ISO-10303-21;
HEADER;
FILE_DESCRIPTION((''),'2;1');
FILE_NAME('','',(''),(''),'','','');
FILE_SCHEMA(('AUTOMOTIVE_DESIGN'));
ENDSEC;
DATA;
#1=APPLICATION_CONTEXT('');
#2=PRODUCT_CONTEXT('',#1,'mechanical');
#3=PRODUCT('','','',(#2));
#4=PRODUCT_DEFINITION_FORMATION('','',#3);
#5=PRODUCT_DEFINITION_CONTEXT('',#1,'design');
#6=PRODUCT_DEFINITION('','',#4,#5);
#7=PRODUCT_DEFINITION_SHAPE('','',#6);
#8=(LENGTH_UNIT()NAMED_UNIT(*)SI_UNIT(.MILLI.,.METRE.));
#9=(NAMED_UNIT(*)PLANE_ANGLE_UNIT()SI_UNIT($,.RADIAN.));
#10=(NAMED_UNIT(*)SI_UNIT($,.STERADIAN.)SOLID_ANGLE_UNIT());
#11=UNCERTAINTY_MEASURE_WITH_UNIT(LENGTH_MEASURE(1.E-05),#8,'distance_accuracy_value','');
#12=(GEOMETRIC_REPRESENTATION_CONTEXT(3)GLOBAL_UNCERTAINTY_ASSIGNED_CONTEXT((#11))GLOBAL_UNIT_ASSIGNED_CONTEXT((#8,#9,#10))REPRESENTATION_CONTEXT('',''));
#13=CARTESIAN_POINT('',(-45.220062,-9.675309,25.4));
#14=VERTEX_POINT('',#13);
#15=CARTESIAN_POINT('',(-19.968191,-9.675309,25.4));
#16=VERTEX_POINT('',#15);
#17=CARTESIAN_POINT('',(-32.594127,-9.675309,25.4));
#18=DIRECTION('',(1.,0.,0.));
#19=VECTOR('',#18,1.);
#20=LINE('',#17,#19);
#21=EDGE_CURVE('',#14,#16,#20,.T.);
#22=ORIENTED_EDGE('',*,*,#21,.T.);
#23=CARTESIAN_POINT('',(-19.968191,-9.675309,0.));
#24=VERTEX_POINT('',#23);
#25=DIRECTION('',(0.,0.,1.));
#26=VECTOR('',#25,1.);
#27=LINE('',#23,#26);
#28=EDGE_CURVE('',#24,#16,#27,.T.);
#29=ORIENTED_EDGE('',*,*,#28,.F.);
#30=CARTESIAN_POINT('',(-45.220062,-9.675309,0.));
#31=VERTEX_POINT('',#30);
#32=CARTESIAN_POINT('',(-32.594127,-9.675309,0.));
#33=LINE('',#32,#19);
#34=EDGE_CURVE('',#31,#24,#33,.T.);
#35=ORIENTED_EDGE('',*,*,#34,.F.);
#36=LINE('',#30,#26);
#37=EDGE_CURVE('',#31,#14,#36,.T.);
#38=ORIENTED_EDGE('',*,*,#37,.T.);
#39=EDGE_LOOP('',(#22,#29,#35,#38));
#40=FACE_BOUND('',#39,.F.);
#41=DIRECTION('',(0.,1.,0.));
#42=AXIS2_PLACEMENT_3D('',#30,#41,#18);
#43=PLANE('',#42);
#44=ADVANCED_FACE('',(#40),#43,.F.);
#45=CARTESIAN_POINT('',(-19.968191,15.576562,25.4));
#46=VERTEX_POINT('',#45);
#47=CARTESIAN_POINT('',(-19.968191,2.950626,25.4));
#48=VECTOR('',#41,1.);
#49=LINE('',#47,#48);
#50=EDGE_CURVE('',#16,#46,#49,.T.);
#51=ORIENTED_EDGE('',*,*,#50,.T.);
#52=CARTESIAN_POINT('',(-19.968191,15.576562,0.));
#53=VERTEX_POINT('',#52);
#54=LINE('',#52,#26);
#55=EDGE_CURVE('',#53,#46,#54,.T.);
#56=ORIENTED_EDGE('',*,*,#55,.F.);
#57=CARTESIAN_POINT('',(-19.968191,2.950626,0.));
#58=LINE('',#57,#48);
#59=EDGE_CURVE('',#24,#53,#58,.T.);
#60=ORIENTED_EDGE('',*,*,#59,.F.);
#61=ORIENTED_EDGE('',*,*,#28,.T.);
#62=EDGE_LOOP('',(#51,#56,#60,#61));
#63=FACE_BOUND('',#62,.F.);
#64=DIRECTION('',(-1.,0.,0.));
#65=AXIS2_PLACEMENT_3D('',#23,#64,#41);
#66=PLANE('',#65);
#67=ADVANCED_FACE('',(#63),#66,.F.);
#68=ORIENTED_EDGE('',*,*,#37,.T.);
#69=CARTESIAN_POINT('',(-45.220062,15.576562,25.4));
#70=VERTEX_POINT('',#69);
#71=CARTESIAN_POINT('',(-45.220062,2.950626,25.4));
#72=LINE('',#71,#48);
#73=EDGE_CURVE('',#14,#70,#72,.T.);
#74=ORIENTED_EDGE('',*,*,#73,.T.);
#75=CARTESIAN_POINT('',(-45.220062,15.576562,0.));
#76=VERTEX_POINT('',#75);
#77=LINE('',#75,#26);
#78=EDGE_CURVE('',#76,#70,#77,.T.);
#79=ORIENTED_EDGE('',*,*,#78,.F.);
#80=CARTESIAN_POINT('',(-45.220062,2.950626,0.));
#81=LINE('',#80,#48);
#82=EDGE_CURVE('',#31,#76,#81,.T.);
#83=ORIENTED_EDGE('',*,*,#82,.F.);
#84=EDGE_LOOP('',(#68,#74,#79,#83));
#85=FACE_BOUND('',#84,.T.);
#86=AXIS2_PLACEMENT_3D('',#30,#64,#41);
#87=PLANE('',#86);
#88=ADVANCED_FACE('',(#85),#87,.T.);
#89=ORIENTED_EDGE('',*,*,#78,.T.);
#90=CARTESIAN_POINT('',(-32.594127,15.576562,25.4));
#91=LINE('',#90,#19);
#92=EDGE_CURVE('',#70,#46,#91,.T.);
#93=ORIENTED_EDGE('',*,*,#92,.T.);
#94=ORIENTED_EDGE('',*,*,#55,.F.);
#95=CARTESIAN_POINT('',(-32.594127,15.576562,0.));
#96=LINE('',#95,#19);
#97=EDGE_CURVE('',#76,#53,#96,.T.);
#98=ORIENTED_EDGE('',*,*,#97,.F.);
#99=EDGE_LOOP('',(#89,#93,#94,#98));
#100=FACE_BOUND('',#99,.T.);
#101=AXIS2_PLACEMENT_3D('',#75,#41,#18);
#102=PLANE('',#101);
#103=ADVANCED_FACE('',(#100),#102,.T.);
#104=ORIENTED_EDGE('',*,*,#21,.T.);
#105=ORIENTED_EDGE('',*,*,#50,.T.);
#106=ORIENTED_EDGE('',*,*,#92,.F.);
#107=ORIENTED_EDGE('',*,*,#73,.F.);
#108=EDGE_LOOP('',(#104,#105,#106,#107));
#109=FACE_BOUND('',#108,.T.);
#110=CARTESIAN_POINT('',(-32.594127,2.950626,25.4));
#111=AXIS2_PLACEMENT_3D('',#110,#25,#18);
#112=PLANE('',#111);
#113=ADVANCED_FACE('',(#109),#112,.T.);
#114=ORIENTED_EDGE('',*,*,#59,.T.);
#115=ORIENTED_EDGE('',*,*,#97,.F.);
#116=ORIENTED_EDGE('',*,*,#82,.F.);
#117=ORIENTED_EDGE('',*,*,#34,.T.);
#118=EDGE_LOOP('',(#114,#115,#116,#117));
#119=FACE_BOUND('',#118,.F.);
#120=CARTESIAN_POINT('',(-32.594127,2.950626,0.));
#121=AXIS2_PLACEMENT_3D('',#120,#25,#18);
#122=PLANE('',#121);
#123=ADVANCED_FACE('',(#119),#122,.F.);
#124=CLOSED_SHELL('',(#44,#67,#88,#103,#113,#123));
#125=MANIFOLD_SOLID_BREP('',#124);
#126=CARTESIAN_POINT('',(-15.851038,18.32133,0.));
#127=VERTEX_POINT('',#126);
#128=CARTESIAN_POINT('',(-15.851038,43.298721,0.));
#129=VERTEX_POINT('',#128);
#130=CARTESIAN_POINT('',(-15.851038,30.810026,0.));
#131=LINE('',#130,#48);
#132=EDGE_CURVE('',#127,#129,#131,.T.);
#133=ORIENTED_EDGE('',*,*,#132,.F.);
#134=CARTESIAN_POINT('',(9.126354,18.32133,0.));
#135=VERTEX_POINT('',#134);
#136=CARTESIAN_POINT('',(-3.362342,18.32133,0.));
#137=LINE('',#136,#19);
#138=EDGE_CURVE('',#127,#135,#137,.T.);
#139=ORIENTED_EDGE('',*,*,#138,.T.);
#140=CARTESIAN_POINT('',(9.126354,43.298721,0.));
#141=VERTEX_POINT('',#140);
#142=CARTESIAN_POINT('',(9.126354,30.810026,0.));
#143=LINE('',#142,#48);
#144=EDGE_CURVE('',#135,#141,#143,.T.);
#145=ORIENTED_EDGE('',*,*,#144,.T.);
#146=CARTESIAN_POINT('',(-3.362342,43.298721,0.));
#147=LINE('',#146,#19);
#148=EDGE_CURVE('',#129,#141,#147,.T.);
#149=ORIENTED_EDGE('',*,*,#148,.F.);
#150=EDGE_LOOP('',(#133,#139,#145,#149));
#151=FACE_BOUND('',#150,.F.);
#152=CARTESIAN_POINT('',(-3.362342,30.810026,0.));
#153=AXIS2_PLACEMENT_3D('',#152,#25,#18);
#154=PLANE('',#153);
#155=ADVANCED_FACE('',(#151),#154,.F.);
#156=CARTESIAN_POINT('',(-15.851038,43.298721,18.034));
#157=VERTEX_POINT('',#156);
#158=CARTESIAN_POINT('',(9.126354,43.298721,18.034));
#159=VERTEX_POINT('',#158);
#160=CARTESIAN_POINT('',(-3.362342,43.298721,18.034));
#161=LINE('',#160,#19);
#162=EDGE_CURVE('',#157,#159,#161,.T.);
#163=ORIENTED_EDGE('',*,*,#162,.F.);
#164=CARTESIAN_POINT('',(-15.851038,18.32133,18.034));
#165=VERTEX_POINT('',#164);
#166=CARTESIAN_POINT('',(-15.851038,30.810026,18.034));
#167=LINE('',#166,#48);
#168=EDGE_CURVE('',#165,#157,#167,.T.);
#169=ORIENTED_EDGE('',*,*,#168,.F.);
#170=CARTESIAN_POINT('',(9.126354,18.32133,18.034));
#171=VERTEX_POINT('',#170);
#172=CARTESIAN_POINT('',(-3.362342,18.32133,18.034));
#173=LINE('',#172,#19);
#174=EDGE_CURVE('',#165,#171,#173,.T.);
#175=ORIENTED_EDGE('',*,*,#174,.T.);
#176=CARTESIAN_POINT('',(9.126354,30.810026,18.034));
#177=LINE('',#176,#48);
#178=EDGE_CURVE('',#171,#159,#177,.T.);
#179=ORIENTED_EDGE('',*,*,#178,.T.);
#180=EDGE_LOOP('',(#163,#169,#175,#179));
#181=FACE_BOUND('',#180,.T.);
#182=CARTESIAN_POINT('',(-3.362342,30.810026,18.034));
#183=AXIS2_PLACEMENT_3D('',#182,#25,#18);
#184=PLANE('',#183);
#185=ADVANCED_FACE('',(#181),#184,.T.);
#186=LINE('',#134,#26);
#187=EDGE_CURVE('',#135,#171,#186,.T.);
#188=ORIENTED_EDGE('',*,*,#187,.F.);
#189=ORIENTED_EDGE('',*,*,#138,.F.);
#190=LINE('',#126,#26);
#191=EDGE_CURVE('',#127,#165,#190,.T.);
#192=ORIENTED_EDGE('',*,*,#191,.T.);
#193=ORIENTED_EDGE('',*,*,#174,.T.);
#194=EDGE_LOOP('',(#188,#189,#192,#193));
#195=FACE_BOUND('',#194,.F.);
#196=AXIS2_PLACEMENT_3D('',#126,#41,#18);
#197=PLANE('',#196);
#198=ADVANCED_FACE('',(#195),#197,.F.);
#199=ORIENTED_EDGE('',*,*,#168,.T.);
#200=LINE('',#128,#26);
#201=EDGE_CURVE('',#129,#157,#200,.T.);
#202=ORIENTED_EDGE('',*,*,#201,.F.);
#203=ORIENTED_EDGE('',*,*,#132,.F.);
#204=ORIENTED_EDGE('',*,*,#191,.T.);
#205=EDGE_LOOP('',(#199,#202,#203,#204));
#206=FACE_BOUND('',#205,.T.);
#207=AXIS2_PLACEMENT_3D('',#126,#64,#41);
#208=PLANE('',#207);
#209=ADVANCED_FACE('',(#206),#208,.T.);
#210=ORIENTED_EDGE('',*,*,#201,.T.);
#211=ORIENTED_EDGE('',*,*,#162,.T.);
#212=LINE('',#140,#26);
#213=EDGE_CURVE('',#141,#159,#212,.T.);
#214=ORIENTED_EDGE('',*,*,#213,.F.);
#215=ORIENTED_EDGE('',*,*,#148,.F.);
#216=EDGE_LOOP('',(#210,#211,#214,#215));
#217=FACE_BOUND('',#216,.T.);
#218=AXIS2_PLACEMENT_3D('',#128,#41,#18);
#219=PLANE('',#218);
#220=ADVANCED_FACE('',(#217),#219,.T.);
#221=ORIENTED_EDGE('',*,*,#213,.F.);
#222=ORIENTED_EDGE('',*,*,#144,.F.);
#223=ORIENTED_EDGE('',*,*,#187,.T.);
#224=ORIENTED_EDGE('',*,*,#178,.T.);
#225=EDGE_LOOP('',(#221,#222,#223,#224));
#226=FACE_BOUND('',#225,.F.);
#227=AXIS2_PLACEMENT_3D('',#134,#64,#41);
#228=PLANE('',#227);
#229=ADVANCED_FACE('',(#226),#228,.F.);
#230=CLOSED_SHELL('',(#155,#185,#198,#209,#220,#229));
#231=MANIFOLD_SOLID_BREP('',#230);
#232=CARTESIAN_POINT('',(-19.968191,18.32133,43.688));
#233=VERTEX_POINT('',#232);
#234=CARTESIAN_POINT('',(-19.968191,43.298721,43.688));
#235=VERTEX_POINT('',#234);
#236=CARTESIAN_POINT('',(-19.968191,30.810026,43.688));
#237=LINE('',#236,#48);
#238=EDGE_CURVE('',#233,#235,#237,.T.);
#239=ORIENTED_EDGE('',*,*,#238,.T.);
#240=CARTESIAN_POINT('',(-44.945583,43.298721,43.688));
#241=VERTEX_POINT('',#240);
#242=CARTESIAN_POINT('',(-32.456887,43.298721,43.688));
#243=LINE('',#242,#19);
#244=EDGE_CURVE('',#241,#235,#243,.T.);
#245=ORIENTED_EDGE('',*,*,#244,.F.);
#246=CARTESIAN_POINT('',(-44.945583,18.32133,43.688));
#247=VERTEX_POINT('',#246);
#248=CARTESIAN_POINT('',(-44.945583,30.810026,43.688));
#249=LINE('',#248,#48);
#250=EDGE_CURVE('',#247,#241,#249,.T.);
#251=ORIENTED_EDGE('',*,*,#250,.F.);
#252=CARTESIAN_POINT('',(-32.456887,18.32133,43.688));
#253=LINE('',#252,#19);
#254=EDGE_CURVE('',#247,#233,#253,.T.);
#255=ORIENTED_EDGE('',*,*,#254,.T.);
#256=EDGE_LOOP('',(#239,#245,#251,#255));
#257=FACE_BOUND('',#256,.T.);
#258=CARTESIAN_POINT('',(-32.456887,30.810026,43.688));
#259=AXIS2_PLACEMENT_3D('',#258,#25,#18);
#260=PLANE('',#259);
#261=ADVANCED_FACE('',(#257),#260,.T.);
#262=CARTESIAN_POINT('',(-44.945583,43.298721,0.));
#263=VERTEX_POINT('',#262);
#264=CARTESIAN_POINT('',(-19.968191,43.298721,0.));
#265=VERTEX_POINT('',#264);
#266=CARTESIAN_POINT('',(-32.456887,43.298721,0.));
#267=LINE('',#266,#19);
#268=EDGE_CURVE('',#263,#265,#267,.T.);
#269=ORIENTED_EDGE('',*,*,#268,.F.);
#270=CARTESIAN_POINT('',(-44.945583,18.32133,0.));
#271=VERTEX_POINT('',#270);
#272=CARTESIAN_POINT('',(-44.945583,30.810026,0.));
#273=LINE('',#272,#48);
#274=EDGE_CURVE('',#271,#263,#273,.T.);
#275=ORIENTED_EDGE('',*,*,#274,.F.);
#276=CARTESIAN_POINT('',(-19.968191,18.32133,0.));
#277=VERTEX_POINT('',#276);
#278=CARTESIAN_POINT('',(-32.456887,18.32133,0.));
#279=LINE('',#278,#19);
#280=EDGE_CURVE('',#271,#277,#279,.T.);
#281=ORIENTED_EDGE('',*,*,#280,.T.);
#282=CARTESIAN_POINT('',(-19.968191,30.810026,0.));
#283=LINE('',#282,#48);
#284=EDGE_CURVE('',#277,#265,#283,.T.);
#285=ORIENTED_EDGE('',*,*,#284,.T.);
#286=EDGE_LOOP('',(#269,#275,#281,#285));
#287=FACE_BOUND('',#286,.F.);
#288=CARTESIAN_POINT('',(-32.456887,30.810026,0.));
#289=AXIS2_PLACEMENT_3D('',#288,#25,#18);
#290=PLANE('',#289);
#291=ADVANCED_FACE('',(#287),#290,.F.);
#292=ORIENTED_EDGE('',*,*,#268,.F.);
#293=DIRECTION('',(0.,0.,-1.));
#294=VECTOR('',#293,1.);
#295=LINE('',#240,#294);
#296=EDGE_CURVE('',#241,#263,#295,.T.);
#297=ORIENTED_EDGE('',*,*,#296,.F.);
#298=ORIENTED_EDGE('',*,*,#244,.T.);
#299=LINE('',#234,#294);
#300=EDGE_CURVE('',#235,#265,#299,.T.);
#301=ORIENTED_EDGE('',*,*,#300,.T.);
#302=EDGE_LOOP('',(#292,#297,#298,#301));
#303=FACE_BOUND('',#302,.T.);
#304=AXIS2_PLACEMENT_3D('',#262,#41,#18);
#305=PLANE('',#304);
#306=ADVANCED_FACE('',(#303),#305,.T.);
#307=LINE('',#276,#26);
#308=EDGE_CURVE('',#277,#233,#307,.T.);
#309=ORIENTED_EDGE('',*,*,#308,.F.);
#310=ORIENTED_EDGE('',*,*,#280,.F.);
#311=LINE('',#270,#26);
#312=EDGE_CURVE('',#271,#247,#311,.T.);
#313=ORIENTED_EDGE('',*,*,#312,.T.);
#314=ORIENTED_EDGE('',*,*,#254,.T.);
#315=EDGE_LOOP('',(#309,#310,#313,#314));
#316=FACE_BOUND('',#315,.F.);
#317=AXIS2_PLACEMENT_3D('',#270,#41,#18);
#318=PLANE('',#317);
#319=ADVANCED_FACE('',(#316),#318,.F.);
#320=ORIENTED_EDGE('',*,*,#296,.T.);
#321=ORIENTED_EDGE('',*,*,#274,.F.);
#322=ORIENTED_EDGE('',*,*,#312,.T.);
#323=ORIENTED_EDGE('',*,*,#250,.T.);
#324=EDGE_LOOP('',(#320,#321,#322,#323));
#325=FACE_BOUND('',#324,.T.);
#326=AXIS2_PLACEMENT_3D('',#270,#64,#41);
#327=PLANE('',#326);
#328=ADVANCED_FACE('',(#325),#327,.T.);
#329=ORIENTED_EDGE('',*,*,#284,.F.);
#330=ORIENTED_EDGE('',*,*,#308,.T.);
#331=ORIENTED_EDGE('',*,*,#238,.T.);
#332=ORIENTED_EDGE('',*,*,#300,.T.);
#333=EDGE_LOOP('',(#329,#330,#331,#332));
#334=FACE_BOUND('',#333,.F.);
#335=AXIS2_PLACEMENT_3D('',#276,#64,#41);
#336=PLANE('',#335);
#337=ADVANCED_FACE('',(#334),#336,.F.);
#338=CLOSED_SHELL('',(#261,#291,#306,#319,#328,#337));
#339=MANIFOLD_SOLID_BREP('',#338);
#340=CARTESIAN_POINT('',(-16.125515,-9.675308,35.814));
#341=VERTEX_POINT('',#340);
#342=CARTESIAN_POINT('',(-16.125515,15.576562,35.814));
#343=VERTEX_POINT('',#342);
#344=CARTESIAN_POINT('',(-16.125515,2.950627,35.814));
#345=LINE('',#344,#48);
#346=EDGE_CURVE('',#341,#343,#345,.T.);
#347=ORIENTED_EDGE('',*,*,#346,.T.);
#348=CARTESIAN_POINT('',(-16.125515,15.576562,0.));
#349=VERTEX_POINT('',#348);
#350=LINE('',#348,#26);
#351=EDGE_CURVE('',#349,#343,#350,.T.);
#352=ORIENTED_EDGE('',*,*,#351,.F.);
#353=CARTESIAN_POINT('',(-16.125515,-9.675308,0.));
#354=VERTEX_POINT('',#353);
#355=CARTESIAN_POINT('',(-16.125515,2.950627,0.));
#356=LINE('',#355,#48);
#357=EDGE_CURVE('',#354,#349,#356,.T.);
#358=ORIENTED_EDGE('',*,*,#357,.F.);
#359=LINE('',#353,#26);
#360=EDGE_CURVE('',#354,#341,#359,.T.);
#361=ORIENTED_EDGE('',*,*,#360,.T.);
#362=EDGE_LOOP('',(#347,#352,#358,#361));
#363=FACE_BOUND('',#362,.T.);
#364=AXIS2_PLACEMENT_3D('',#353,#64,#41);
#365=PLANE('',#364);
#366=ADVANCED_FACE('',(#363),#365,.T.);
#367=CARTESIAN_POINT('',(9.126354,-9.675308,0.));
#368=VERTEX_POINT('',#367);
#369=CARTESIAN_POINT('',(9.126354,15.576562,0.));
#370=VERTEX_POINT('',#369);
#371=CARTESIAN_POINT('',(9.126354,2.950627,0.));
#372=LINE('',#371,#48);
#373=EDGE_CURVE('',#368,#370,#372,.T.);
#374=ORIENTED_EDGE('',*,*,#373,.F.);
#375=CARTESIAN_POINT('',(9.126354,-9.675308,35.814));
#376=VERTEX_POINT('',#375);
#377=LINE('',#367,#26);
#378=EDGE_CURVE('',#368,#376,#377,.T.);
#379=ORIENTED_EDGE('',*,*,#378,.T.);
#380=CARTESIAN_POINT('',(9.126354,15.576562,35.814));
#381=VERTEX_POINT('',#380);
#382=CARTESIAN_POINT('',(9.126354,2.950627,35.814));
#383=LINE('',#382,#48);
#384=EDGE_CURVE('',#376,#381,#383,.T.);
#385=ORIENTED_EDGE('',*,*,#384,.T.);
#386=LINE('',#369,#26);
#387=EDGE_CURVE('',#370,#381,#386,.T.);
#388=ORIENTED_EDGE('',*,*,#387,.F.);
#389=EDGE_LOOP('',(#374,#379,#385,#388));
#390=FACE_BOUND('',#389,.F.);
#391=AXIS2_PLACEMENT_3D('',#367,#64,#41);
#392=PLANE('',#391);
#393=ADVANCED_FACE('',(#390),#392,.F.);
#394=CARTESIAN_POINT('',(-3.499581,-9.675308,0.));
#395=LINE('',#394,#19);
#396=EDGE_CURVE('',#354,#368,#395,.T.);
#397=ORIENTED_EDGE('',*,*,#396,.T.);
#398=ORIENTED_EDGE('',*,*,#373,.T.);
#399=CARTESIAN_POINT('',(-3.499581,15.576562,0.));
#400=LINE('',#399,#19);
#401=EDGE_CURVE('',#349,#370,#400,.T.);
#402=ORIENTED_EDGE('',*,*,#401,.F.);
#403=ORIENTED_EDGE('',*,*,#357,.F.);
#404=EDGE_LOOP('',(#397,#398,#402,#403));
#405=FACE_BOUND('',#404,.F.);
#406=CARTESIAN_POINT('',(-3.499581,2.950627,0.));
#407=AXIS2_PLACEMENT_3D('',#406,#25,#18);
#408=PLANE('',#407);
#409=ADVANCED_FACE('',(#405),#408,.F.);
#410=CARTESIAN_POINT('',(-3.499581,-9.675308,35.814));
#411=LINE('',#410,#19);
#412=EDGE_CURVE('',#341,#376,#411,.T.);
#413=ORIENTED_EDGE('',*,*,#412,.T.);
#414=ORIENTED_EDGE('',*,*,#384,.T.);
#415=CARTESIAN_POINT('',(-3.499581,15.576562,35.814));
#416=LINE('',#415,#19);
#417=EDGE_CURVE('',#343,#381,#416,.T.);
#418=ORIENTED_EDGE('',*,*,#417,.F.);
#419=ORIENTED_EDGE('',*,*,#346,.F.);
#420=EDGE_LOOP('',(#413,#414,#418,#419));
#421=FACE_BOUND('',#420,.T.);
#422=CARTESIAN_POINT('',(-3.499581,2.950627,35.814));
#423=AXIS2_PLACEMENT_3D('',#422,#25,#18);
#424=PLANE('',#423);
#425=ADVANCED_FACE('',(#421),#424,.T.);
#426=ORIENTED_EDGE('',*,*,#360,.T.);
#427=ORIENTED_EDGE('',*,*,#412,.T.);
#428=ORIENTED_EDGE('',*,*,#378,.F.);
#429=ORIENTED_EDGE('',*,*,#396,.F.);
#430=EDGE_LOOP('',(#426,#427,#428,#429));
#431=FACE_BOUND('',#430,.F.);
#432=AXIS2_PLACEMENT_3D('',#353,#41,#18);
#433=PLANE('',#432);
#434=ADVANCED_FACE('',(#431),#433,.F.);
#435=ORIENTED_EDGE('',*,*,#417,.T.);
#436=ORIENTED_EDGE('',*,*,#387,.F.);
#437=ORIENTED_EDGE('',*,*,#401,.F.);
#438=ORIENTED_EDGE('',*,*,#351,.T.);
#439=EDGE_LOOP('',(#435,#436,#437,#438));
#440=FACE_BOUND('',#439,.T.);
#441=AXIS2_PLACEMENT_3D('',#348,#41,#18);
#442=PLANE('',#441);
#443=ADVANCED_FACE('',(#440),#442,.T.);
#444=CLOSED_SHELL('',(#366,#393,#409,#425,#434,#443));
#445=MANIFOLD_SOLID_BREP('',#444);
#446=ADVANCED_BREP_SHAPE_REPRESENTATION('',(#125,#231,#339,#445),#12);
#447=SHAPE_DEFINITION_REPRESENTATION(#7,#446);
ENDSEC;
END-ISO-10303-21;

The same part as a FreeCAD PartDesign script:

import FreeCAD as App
import Part
import Sketcher

V = App.Vector


def add_polygon(sketch, points):
    """Adds a closed chain of lines whose ends are joined by coincident constraints."""
    first, n = sketch.GeometryCount, len(points)
    for a, b in zip(points, points[1:] + points[:1]):
        sketch.addGeometry(Part.LineSegment(App.Vector(*a, 0), App.Vector(*b, 0)), False)
    for i in range(n):
        sketch.addConstraint(Sketcher.Constraint("Coincident", first + i, 2, first + (i + 1) % n, 1))

doc = App.newDocument("Part")
params = doc.addObject("Spreadsheet::Sheet", "Params")
for row, (alias, value) in enumerate([
    ("pad1_length", "0.71 in"),
    ("pad2_length", "1.72 in"),
    ("pad3_length", "1 in"),
    ("pad4_length", "1.41 in"),
], start=1):
    params.set(f"A{row}", alias)
    params.set(f"B{row}", "=" + value)
    params.setAlias(f"B{row}", alias)

body = doc.addObject("PartDesign::Body", "Body")

sketch1 = body.newObject("Sketcher::SketchObject", "Sketch")
sketch1.AttachmentSupport = (doc.getObject("XY_Plane"), [""])
sketch1.MapMode = "FlatFace"
add_polygon(sketch1, [(-16, 43), (-16, 18), (9, 18), (9, 43)])
sketch1.addConstraint([
    Sketcher.Constraint("Vertical", 0),
    Sketcher.Constraint("Horizontal", 1),
    Sketcher.Constraint("Vertical", 2),
    Sketcher.Constraint("Horizontal", 3),
    Sketcher.Constraint("Equal", 3, 0),
    Sketcher.Constraint("DistanceY", 0, 2, 0, 1, 24.977391),
    Sketcher.Constraint("DistanceX", 0, 2, -1, 1, 15.851038),
    Sketcher.Constraint("DistanceY", -1, 1, 0, 2, 18.32133),
])
pad1 = body.newObject("PartDesign::Pad", "Pad")
pad1.Profile = sketch1
pad1.setExpression("Length", "Params.pad1_length")
body2 = doc.addObject("PartDesign::Body", "Body001")
body2.AllowCompound = True

sketch2 = body2.newObject("Sketcher::SketchObject", "Sketch001")
sketch2.AttachmentSupport = (doc.getObject("XY_Plane001"), [""])
sketch2.MapMode = "FlatFace"
add_polygon(sketch2, [(-45, 43), (-45, 18), (-20, 18), (-20, 43)])
sketch2.addConstraint([
    Sketcher.Constraint("Vertical", 0),
    Sketcher.Constraint("Horizontal", 1),
    Sketcher.Constraint("Vertical", 2),
    Sketcher.Constraint("Horizontal", 3),
    Sketcher.Constraint("Equal", 3, 0),
    Sketcher.Constraint("DistanceX", 1, 1, 1, 2, 24.977392),
    Sketcher.Constraint("DistanceY", -1, 1, 0, 2, 18.32133),
    Sketcher.Constraint("DistanceX", 1, 2, -1, 1, 19.968191),
])
pad2 = body2.newObject("PartDesign::Pad", "Pad001")
pad2.Profile = sketch2
pad2.setExpression("Length", "Params.pad2_length")

sketch3 = body2.newObject("Sketcher::SketchObject", "Sketch002")
sketch3.AttachmentSupport = (doc.getObject("XY_Plane001"), [""])
sketch3.MapMode = "FlatFace"
add_polygon(sketch3, [(-45, 43), (-45, 18), (-20, 18), (-20, 43)])
add_polygon(sketch3, [(-45, 16), (-45, -10), (-20, -10), (-20, 16)])
sketch3.addConstraint([
    Sketcher.Constraint("Vertical", 0),
    Sketcher.Constraint("Horizontal", 1),
    Sketcher.Constraint("Vertical", 2),
    Sketcher.Constraint("Horizontal", 3),
    Sketcher.Constraint("Vertical", 4),
    Sketcher.Constraint("Horizontal", 5),
    Sketcher.Constraint("Vertical", 6),
    Sketcher.Constraint("Horizontal", 7),
    Sketcher.Constraint("Vertical", 2, 2, 5, 2),
    Sketcher.Constraint("Equal", 3, 0),
    Sketcher.Constraint("Equal", 7, 4),
    Sketcher.Constraint("DistanceX", 1, 1, 1, 2, 24.977392),
    Sketcher.Constraint("DistanceX", 5, 1, 5, 2, 25.251871),
    Sketcher.Constraint("DistanceY", -1, 1, 0, 2, 18.32133),
    Sketcher.Constraint("DistanceX", 1, 2, -1, 1, 19.968191),
    Sketcher.Constraint("DistanceY", 4, 2, -1, 1, 9.675309),
])
pad3 = body2.newObject("PartDesign::Pad", "Pad002")
pad3.Profile = sketch3
pad3.setExpression("Length", "Params.pad3_length")
body3 = doc.addObject("PartDesign::Body", "Body002")

sketch4 = body3.newObject("Sketcher::SketchObject", "Sketch003")
sketch4.AttachmentSupport = (doc.getObject("XY_Plane002"), [""])
sketch4.MapMode = "FlatFace"
add_polygon(sketch4, [(-16, 16), (-16, -10), (9, -10), (9, 16)])
sketch4.addConstraint([
    Sketcher.Constraint("Vertical", 0),
    Sketcher.Constraint("Horizontal", 1),
    Sketcher.Constraint("Vertical", 2),
    Sketcher.Constraint("Horizontal", 3),
    Sketcher.Constraint("Equal", 3, 0),
    Sketcher.Constraint("DistanceX", 1, 1, 1, 2, 25.251869),
    Sketcher.Constraint("DistanceY", -1, 1, 2, 2, 15.576562),
    Sketcher.Constraint("DistanceX", 0, 2, -1, 1, 16.125515),
])
pad4 = body3.newObject("PartDesign::Pad", "Pad003")
pad4.Profile = sketch4
pad4.setExpression("Length", "Params.pad4_length")

doc.recompute()
